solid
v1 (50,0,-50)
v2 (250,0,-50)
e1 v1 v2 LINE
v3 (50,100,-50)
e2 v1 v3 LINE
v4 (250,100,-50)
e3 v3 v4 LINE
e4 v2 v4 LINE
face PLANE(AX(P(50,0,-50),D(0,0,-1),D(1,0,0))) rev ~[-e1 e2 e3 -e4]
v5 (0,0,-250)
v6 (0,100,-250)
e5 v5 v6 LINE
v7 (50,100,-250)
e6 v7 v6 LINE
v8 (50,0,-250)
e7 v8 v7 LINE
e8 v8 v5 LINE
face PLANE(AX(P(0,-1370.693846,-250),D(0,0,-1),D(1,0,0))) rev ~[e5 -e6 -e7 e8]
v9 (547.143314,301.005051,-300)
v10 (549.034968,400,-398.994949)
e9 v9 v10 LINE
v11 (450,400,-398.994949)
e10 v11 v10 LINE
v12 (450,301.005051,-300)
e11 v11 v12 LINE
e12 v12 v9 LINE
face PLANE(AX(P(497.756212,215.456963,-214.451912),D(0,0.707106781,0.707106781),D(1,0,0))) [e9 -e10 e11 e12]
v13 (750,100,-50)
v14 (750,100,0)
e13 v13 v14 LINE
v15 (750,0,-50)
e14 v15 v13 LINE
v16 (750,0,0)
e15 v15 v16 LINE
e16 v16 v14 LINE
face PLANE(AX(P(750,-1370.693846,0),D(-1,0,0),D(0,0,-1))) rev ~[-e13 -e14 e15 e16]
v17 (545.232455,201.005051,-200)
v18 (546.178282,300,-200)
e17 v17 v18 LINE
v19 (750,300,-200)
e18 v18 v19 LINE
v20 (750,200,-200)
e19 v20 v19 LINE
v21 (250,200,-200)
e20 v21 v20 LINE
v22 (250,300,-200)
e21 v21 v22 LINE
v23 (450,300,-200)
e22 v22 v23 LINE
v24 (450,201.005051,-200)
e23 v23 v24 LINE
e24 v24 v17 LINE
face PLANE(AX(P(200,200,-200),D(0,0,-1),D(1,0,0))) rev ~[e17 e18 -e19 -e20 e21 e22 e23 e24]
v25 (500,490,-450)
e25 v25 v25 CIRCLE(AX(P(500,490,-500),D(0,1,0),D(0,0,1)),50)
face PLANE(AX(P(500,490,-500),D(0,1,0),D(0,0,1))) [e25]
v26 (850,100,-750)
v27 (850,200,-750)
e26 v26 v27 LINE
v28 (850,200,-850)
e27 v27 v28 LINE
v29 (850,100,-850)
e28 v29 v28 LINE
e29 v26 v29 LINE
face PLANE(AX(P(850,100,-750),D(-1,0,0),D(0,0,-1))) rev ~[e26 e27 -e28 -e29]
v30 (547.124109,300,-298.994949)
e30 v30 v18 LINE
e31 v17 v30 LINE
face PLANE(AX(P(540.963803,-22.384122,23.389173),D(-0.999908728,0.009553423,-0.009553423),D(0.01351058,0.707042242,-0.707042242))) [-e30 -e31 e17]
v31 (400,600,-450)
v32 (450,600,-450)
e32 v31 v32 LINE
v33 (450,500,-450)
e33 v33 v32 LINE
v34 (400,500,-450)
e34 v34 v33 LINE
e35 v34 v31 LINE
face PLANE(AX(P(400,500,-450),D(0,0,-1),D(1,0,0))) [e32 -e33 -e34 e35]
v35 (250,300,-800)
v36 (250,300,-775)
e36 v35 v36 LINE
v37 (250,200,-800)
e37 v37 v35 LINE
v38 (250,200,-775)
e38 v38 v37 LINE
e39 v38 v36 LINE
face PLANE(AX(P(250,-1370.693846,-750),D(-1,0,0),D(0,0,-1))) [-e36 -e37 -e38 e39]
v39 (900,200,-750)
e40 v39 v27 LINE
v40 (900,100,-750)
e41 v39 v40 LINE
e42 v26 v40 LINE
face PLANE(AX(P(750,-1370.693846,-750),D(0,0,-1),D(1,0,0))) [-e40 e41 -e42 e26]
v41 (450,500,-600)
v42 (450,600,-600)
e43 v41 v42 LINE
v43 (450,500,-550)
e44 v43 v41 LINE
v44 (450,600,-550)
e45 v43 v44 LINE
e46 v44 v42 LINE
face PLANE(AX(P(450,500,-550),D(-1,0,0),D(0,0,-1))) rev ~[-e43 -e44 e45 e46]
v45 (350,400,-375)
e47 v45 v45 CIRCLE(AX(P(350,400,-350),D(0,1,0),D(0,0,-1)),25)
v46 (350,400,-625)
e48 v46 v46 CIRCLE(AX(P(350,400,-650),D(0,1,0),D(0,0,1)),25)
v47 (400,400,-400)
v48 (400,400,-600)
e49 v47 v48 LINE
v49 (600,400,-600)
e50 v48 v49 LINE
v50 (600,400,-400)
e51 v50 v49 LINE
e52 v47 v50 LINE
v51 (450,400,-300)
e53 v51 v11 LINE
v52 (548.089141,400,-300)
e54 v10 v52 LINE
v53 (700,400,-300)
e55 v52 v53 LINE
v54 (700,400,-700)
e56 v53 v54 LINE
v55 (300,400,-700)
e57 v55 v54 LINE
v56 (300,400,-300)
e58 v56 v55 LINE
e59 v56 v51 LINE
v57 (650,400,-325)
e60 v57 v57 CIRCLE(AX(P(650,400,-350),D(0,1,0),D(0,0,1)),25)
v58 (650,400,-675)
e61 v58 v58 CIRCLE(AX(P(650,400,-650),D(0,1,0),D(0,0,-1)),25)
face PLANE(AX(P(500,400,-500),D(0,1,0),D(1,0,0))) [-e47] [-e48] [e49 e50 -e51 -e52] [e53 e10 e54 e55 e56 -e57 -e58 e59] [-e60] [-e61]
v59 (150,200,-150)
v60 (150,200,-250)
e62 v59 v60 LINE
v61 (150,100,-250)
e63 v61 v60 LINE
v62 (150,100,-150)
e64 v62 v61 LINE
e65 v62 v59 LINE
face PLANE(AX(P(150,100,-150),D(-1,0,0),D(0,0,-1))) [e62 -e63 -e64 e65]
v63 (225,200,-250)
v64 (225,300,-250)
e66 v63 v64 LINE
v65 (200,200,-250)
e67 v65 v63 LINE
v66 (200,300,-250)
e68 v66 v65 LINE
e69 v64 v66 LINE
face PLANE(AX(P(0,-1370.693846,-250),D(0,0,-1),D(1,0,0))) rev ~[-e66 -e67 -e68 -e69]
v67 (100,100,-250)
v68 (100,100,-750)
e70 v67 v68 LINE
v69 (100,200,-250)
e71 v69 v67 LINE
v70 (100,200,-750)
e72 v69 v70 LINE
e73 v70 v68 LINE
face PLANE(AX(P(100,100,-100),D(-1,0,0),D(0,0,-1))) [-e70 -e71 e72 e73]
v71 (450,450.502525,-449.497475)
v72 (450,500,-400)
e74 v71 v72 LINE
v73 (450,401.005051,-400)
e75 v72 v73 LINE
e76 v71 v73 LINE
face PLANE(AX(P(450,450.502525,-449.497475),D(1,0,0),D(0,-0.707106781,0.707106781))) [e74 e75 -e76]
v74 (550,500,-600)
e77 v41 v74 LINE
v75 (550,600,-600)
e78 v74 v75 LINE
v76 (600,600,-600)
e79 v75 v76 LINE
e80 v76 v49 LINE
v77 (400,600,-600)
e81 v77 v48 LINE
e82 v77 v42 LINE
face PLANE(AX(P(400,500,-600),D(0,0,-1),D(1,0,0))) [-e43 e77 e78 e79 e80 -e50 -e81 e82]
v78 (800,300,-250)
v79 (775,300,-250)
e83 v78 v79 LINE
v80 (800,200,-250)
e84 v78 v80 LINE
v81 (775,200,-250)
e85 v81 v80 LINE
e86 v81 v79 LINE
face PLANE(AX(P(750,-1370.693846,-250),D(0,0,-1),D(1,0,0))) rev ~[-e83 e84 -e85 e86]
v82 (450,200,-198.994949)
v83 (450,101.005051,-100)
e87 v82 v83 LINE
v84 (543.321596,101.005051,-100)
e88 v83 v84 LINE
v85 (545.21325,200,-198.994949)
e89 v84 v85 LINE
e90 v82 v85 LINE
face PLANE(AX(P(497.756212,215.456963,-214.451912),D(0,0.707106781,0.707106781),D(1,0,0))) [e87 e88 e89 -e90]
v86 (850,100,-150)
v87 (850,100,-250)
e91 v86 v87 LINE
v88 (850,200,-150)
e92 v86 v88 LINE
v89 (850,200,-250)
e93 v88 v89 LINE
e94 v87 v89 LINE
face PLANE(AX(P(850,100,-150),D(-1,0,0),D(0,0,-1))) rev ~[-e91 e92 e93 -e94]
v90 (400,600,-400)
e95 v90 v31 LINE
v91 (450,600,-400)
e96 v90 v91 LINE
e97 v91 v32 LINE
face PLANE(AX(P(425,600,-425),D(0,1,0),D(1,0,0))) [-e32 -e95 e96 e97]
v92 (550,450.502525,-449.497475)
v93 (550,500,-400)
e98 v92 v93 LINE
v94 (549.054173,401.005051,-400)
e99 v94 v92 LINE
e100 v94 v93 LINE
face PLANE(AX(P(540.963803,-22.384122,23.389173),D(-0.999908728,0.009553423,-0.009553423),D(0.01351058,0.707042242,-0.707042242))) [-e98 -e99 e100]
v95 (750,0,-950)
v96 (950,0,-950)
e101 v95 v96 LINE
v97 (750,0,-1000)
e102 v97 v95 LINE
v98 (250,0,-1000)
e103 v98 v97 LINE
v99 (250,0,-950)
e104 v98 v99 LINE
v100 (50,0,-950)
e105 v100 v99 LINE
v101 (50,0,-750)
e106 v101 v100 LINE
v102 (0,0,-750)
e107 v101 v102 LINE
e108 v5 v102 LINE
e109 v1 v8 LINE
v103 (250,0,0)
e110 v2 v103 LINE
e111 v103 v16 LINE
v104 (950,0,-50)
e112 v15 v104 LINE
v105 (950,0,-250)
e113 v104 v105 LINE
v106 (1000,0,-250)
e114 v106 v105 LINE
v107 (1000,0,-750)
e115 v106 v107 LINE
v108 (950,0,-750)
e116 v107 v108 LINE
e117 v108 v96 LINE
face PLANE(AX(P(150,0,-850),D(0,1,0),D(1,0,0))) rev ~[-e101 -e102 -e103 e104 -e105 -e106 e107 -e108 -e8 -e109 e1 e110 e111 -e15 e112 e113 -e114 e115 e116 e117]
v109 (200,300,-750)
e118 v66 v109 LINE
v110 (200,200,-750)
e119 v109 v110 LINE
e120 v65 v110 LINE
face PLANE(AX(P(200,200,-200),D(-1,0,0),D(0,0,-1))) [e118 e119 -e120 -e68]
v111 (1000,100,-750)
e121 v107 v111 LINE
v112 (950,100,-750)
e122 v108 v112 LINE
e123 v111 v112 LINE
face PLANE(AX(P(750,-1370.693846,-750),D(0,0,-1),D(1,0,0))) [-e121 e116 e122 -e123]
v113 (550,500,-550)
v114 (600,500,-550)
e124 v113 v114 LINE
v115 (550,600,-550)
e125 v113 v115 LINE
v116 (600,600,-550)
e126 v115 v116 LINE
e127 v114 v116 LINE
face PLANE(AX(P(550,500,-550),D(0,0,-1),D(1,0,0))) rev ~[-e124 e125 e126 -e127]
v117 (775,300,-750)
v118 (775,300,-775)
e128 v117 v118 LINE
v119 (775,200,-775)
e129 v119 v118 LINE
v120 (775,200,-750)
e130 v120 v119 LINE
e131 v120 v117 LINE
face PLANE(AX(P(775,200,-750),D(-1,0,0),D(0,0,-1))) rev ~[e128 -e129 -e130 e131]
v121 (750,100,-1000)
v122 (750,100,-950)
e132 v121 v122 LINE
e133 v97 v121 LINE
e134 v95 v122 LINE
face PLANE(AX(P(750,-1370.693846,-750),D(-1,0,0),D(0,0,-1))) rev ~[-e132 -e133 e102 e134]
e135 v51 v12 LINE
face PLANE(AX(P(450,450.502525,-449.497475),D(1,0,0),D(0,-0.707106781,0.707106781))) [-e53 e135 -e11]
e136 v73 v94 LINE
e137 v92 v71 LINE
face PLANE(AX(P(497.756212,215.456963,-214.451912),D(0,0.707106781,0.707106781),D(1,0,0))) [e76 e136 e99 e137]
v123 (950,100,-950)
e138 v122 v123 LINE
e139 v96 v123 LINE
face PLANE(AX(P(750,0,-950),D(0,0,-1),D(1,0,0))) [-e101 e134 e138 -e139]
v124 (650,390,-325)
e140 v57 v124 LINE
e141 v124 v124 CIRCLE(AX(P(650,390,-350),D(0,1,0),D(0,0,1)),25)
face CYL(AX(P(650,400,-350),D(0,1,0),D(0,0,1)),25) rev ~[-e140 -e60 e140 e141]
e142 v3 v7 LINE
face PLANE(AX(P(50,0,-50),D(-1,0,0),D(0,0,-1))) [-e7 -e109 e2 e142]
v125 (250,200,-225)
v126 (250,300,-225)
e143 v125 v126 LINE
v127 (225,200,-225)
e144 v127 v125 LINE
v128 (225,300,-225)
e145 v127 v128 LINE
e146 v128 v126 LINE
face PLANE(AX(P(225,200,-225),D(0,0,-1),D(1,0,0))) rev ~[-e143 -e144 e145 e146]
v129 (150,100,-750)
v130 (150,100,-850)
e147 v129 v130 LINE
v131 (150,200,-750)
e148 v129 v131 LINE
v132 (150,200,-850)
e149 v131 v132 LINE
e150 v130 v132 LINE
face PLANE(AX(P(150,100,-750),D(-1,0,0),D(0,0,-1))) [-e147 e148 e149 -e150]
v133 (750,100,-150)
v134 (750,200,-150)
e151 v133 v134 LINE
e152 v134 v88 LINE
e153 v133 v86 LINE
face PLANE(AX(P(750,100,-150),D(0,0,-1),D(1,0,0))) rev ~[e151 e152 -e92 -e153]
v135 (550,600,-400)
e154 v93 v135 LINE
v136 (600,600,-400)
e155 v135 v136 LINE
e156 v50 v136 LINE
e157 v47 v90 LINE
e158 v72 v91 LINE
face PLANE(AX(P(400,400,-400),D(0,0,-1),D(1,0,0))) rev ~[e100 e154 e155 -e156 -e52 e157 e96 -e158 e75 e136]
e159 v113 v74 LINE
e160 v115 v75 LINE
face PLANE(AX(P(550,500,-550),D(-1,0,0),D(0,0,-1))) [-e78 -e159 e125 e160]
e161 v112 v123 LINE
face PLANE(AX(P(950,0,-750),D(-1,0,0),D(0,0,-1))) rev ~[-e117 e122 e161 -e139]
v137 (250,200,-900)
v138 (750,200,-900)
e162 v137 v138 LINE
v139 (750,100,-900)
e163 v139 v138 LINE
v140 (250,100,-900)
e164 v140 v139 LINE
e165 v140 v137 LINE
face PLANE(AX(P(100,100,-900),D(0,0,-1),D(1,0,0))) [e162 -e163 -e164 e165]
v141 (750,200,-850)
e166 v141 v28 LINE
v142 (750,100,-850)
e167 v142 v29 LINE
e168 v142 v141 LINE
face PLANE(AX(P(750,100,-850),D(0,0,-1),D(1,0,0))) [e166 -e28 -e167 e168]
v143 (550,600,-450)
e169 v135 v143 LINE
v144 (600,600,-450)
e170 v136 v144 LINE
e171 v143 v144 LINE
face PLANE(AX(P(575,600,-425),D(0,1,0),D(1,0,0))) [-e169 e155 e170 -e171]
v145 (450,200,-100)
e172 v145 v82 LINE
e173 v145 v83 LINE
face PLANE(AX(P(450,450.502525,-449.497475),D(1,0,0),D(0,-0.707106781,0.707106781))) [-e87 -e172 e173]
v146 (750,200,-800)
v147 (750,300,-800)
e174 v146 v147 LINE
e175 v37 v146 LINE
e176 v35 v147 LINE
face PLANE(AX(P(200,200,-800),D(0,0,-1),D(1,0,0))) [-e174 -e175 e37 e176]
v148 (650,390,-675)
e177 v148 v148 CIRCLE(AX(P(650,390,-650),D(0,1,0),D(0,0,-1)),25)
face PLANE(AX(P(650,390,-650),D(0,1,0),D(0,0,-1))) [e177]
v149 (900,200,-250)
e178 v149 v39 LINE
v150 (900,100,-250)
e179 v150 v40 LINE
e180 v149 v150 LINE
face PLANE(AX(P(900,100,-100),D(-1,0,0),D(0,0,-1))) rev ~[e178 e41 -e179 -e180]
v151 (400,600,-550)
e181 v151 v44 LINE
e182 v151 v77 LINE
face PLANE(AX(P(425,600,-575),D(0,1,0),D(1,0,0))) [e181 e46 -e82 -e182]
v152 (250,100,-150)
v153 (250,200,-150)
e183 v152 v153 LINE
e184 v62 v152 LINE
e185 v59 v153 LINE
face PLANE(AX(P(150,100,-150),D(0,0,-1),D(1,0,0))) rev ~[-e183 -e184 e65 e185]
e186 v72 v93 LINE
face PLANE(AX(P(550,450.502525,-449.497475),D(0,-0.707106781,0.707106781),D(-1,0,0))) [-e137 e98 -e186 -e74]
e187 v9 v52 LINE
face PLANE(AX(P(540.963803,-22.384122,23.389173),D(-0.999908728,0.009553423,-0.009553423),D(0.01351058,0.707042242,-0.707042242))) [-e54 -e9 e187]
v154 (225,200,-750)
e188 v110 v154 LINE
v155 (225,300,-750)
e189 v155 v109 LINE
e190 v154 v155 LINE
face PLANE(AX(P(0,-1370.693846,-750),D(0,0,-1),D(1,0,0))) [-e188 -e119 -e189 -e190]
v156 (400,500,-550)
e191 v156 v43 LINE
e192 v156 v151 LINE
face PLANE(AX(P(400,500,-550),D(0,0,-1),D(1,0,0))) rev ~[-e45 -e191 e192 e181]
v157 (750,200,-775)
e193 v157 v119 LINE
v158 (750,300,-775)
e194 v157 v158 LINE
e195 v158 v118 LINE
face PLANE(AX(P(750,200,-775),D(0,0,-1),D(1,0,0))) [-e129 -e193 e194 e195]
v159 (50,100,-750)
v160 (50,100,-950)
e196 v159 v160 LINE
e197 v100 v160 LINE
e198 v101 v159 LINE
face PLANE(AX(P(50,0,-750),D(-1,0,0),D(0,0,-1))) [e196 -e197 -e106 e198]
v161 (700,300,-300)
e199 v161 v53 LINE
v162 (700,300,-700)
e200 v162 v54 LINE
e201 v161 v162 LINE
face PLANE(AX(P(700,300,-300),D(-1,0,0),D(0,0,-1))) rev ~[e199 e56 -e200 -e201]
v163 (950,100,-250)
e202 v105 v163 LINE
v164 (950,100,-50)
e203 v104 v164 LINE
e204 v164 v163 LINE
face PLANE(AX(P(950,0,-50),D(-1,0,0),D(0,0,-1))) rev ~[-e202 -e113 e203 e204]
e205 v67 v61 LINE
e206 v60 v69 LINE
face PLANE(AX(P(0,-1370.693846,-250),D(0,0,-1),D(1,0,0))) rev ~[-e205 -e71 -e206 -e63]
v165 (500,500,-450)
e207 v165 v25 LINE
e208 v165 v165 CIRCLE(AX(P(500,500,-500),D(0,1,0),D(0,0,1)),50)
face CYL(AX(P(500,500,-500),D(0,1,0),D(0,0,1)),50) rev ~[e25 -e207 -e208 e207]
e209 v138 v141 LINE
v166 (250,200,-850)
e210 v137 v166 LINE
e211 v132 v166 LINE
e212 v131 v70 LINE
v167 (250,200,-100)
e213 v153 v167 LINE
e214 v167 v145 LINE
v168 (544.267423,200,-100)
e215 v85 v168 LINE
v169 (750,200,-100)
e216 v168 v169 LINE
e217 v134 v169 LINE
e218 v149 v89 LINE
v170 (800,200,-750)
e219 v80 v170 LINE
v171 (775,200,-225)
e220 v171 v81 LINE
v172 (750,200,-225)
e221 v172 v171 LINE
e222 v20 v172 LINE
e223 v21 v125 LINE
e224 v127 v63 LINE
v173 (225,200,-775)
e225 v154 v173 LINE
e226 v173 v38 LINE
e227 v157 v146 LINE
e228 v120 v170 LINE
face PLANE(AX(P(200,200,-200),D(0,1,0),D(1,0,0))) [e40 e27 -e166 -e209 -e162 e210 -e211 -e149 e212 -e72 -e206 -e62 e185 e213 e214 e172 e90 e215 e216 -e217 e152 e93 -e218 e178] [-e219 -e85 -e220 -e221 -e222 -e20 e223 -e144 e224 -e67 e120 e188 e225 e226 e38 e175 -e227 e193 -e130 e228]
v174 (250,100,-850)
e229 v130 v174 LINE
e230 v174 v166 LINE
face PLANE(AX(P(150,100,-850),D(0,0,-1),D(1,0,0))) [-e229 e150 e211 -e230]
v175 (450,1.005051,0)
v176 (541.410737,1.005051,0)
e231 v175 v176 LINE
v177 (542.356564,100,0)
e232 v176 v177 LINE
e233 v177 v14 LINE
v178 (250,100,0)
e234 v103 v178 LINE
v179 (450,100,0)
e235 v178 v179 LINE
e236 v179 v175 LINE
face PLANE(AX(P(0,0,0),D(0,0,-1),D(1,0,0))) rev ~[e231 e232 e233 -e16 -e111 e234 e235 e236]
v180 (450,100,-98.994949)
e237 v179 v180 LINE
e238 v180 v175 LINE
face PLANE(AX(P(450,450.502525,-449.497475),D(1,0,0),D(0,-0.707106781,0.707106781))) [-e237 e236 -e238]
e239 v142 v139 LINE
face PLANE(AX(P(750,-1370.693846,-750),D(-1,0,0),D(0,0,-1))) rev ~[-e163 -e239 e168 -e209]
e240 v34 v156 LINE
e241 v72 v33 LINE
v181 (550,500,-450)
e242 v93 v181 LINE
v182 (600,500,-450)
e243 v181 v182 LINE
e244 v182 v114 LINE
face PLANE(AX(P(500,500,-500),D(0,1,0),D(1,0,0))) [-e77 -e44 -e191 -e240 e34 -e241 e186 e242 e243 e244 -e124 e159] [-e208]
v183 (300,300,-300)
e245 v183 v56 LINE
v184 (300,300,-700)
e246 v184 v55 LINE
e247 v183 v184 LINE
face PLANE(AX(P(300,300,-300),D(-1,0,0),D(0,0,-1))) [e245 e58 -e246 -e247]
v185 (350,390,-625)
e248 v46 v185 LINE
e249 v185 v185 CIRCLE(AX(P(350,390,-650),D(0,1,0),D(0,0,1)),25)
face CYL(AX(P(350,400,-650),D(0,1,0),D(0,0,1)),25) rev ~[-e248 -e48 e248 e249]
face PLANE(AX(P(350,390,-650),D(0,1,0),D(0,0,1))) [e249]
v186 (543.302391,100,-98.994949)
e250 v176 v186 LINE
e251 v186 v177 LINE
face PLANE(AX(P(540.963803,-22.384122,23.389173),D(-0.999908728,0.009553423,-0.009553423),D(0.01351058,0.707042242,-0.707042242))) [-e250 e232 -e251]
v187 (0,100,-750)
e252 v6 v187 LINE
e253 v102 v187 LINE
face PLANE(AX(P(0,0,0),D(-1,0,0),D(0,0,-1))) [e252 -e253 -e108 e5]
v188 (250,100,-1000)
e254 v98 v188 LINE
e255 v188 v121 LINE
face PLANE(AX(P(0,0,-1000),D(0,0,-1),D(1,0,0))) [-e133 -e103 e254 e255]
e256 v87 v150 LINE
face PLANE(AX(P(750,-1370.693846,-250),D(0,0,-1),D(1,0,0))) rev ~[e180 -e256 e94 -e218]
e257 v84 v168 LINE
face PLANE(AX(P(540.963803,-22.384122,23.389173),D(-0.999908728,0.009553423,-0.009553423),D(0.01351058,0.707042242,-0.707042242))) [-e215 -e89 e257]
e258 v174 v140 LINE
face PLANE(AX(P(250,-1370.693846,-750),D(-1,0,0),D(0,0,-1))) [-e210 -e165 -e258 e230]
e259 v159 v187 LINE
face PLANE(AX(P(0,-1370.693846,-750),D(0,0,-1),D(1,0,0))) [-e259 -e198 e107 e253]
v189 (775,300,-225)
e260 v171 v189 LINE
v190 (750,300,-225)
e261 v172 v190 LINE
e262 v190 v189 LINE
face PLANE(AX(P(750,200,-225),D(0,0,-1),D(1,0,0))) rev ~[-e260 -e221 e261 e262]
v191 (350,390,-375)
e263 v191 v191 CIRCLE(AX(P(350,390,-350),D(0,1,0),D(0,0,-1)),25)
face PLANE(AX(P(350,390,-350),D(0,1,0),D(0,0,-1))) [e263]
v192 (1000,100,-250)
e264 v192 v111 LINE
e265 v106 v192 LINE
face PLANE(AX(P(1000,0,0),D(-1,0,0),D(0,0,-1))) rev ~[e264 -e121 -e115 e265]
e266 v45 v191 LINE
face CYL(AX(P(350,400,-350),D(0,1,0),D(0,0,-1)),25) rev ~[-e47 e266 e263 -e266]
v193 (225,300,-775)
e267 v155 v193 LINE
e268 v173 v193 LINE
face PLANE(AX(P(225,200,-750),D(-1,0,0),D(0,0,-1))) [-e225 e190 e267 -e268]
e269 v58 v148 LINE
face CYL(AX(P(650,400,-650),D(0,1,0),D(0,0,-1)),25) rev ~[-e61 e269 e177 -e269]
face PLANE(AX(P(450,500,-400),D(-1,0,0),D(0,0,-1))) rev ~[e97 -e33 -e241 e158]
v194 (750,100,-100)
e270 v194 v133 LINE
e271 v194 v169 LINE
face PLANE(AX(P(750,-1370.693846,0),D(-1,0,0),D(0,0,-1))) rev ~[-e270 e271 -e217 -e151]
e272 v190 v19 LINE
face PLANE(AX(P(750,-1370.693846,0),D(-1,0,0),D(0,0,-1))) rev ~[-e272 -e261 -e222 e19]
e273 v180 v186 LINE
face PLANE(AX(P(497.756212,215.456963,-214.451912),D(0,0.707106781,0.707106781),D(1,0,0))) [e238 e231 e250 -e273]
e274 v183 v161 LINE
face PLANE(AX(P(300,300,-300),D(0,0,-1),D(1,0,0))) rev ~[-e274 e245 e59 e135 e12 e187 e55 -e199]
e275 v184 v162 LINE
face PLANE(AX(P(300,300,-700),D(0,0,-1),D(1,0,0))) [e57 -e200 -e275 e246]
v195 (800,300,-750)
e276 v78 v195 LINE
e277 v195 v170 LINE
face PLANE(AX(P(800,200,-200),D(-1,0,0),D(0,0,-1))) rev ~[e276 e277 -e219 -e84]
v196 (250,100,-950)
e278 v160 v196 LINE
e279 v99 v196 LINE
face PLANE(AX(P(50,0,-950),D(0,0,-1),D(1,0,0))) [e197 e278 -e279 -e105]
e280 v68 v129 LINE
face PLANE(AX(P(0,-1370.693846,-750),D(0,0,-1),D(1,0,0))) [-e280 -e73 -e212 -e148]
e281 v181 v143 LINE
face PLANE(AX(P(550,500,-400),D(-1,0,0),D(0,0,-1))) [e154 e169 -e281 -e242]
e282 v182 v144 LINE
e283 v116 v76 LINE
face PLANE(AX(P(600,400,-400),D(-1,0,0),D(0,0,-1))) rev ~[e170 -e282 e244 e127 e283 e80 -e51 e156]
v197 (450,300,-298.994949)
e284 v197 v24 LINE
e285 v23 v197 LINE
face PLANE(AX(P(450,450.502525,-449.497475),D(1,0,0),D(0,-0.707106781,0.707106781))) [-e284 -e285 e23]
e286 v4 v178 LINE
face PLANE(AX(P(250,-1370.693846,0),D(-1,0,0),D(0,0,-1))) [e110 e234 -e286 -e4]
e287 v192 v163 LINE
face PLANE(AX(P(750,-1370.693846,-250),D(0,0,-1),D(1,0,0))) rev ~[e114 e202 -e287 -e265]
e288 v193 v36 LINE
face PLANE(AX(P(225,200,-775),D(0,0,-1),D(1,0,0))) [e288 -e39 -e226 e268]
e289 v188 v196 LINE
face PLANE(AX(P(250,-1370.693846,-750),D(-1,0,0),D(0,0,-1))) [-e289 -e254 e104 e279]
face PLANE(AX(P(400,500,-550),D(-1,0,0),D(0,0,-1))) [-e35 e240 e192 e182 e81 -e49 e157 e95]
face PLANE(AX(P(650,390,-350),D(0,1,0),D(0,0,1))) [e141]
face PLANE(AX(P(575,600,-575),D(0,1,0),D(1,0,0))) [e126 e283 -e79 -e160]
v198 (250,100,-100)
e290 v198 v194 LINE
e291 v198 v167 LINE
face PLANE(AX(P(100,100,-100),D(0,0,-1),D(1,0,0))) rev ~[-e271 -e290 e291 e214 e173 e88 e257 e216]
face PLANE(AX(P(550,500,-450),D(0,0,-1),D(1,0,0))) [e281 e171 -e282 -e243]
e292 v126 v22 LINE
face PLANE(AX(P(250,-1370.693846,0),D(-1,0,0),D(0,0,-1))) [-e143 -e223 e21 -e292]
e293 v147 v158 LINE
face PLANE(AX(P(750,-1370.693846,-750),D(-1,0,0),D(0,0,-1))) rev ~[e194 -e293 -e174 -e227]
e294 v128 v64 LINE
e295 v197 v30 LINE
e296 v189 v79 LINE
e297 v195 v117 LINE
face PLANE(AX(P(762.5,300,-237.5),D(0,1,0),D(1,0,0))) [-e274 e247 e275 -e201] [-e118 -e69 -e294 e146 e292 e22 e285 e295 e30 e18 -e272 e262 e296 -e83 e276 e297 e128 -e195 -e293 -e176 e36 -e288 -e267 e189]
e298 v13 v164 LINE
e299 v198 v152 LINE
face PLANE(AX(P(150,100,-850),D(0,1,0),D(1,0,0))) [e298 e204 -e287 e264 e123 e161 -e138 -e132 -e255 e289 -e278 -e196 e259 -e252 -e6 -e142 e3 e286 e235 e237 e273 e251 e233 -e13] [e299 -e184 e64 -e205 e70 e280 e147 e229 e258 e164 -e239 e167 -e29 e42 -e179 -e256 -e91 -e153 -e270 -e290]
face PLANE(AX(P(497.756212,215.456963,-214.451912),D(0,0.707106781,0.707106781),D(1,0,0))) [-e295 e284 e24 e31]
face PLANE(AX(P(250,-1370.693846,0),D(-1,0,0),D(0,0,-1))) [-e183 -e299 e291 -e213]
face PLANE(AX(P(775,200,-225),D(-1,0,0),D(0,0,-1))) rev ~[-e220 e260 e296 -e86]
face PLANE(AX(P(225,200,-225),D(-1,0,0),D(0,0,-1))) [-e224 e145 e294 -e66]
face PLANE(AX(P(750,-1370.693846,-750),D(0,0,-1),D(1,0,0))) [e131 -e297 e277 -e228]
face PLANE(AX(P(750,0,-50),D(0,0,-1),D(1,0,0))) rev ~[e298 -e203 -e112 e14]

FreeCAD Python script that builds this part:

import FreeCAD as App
import Part
import Sketcher
from FreeCAD import Vector
Q = App.Units.Quantity


def add_polygon(sketch, points):
    """Adds a closed chain of lines whose ends are joined by coincident constraints."""
    first, n = sketch.GeometryCount, len(points)
    for a, b in zip(points, points[1:] + points[:1]):
        sketch.addGeometry(Part.LineSegment(App.Vector(*a, 0), App.Vector(*b, 0)), False)
    for i in range(n):
        sketch.addConstraint(Sketcher.Constraint("Coincident", first + i, 2, first + (i + 1) % n, 1))

doc = App.newDocument("Part")
body = doc.addObject("PartDesign::Body", "Body")

sketch1 = doc.addObject("Sketcher::SketchObject", "Sketch")
body.addObject(sketch1)
sketch1.AttachmentSupport = (doc.XZ_Plane, [""])
sketch1.MapMode = "FlatFace"
add_polygon(sketch1, [(0, -1000), (0, 0), (1000, 0), (1000, -1000)])
sketch1.addConstraint(Sketcher.Constraint("Vertical", 0))
sketch1.addConstraint(Sketcher.Constraint("Horizontal", 1))
sketch1.addConstraint(Sketcher.Constraint("Vertical", 2))
sketch1.addConstraint(Sketcher.Constraint("Horizontal", 3))
sketch1.addConstraint(Sketcher.Constraint("Coincident", 0, 2, -1, 1))
sketch1.addConstraint(Sketcher.Constraint("Equal", 3, 0))
sketch1.addConstraint(Sketcher.Constraint("DistanceX", 1, 1, 1, 2, Q("1000 mm")))
pad1 = doc.addObject("PartDesign::Pad", "Pad")
body.addObject(pad1)
pad1.Profile = sketch1
pad1.Length = 100
pad1.Reversed = True

sketch2 = doc.addObject("Sketcher::SketchObject", "Sketch001")
body.addObject(sketch2)
sketch2.AttachmentSupport = (doc.XZ_Plane, [""])
sketch2.MapMode = "FlatFace"
sketch2.AttachmentOffset = App.Placement(Vector(0, 0, -100), App.Rotation())
add_polygon(sketch2, [(100, -900), (100, -100), (900, -100), (900, -900)])
sketch2.addConstraint(Sketcher.Constraint("Vertical", 0))
sketch2.addConstraint(Sketcher.Constraint("Horizontal", 1))
sketch2.addConstraint(Sketcher.Constraint("Vertical", 2))
sketch2.addConstraint(Sketcher.Constraint("Horizontal", 3))
sketch2.addConstraint(Sketcher.Constraint("Equal", 3, 0))
sketch2.addConstraint(Sketcher.Constraint("DistanceX", 1, 1, 1, 2, Q("800 mm")))
sketch2.addConstraint(Sketcher.Constraint("DistanceX", -1, 1, 0, 2, Q("100 mm")))
sketch2.addConstraint(Sketcher.Constraint("DistanceY", 0, 2, -1, 1, Q("100 mm")))
pad2 = doc.addObject("PartDesign::Pad", "Pad001")
body.addObject(pad2)
pad2.Profile = sketch2
pad2.Length = 100
pad2.Reversed = True

sketch3 = doc.addObject("Sketcher::SketchObject", "Sketch002")
body.addObject(sketch3)
sketch3.AttachmentSupport = (doc.XZ_Plane, [""])
sketch3.MapMode = "FlatFace"
sketch3.AttachmentOffset = App.Placement(Vector(0, 0, -200), App.Rotation())
add_polygon(sketch3, [(200, -800), (200, -200), (800, -200), (800, -800)])
sketch3.addConstraint(Sketcher.Constraint("Vertical", 0))
sketch3.addConstraint(Sketcher.Constraint("Horizontal", 1))
sketch3.addConstraint(Sketcher.Constraint("Vertical", 2))
sketch3.addConstraint(Sketcher.Constraint("Horizontal", 3))
sketch3.addConstraint(Sketcher.Constraint("Equal", 3, 0))
sketch3.addConstraint(Sketcher.Constraint("DistanceX", 1, 1, 1, 2, Q("600 mm")))
sketch3.addConstraint(Sketcher.Constraint("DistanceX", -1, 1, 0, 2, Q("200 mm")))
sketch3.addConstraint(Sketcher.Constraint("DistanceY", 0, 2, -1, 1, Q("200 mm")))
pad3 = doc.addObject("PartDesign::Pad", "Pad002")
body.addObject(pad3)
pad3.Profile = sketch3
pad3.Length = 100
pad3.Reversed = True

sketch4 = doc.addObject("Sketcher::SketchObject", "Sketch003")
body.addObject(sketch4)
sketch4.AttachmentSupport = (doc.XZ_Plane, [""])
sketch4.MapMode = "FlatFace"
sketch4.AttachmentOffset = App.Placement(Vector(0, 0, -300), App.Rotation())
add_polygon(sketch4, [(300, -700), (300, -300), (700, -300), (700, -700)])
sketch4.addConstraint(Sketcher.Constraint("Vertical", 0))
sketch4.addConstraint(Sketcher.Constraint("Horizontal", 1))
sketch4.addConstraint(Sketcher.Constraint("Vertical", 2))
sketch4.addConstraint(Sketcher.Constraint("Horizontal", 3))
sketch4.addConstraint(Sketcher.Constraint("Equal", 3, 0))
sketch4.addConstraint(Sketcher.Constraint("DistanceX", 1, 1, 1, 2, Q("400 mm")))
sketch4.addConstraint(Sketcher.Constraint("DistanceX", -1, 1, 0, 2, Q("300 mm")))
sketch4.addConstraint(Sketcher.Constraint("DistanceY", 0, 2, -1, 1, Q("300 mm")))
pad4 = doc.addObject("PartDesign::Pad", "Pad003")
body.addObject(pad4)
pad4.Profile = sketch4
pad4.Length = 100
pad4.Reversed = True

sketch5 = doc.addObject("Sketcher::SketchObject", "Sketch004")
body.addObject(sketch5)
sketch5.AttachmentSupport = (doc.XZ_Plane, [""])
sketch5.MapMode = "FlatFace"
sketch5.AttachmentOffset = App.Placement(Vector(0, 0, -400), App.Rotation())
add_polygon(sketch5, [(400, -600), (400, -400), (600, -400), (600, -600)])
sketch5.addConstraint(Sketcher.Constraint("Vertical", 0))
sketch5.addConstraint(Sketcher.Constraint("Horizontal", 1))
sketch5.addConstraint(Sketcher.Constraint("Vertical", 2))
sketch5.addConstraint(Sketcher.Constraint("Horizontal", 3))
sketch5.addConstraint(Sketcher.Constraint("Equal", 3, 0))
sketch5.addConstraint(Sketcher.Constraint("DistanceX", 1, 1, 1, 2, Q("200 mm")))
sketch5.addConstraint(Sketcher.Constraint("DistanceX", -1, 1, 0, 2, Q("400 mm")))
sketch5.addConstraint(Sketcher.Constraint("DistanceY", 0, 2, -1, 1, Q("400 mm")))
pad5 = doc.addObject("PartDesign::Pad", "Pad004")
body.addObject(pad5)
pad5.Profile = sketch5
pad5.Length = 100
pad5.Reversed = True

sketch6 = doc.addObject("Sketcher::SketchObject", "Sketch005")
body.addObject(sketch6)
sketch6.AttachmentSupport = (doc.XZ_Plane, [""])
sketch6.MapMode = "FlatFace"
sketch6.AttachmentOffset = App.Placement(Vector(0, 0, -100), App.Rotation())
add_polygon(sketch6, [(0, -250), (0, 0), (250, 0), (250, -250)])
add_polygon(sketch6, [(750, -250), (750, 0), (1000, 0), (1000, -250)])
add_polygon(sketch6, [(750, -1000), (750, -750), (1000, -750), (1000, -1000)])
add_polygon(sketch6, [(0, -1000), (0, -750), (250, -750), (250, -1000)])
sketch6.addConstraint(Sketcher.Constraint("Vertical", 0))
sketch6.addConstraint(Sketcher.Constraint("Horizontal", 1))
sketch6.addConstraint(Sketcher.Constraint("Vertical", 2))
sketch6.addConstraint(Sketcher.Constraint("Horizontal", 3))
sketch6.addConstraint(Sketcher.Constraint("Vertical", 4))
sketch6.addConstraint(Sketcher.Constraint("Horizontal", 5))
sketch6.addConstraint(Sketcher.Constraint("Vertical", 6))
sketch6.addConstraint(Sketcher.Constraint("Horizontal", 7))
sketch6.addConstraint(Sketcher.Constraint("Vertical", 8))
sketch6.addConstraint(Sketcher.Constraint("Horizontal", 9))
sketch6.addConstraint(Sketcher.Constraint("Vertical", 10))
sketch6.addConstraint(Sketcher.Constraint("Horizontal", 11))
sketch6.addConstraint(Sketcher.Constraint("Vertical", 12))
sketch6.addConstraint(Sketcher.Constraint("Horizontal", 13))
sketch6.addConstraint(Sketcher.Constraint("Vertical", 14))
sketch6.addConstraint(Sketcher.Constraint("Horizontal", 15))
sketch6.addConstraint(Sketcher.Constraint("Coincident", 0, 2, -1, 1))
sketch6.addConstraint(Sketcher.Constraint("PointOnObject", 4, 2, -1))
sketch6.addConstraint(Sketcher.Constraint("PointOnObject", 12, 2, -2))
sketch6.addConstraint(Sketcher.Constraint("Horizontal", 3, 2, 6, 2))
sketch6.addConstraint(Sketcher.Constraint("Horizontal", 9, 2, 12, 2))
sketch6.addConstraint(Sketcher.Constraint("Horizontal", 11, 2, 14, 2))
sketch6.addConstraint(Sketcher.Constraint("Vertical", 7, 2, 8, 2))
sketch6.addConstraint(Sketcher.Constraint("Vertical", 6, 2, 9, 2))
sketch6.addConstraint(Sketcher.Constraint("Vertical", 2, 2, 13, 2))
sketch6.addConstraint(Sketcher.Constraint("Equal", 3, 5))
sketch6.addConstraint(Sketcher.Constraint("Equal", 15, 0))
sketch6.addConstraint(Sketcher.Constraint("Equal", 6, 8))
sketch6.addConstraint(Sketcher.Constraint("DistanceX", 1, 1, 1, 2, Q("250 mm")))
sketch6.addConstraint(Sketcher.Constraint("DistanceX", -1, 1, 4, 2, Q("750 mm")))
sketch6.addConstraint(Sketcher.Constraint("DistanceY", 8, 2, -1, 1, Q("750 mm")))
pocket1 = doc.addObject("PartDesign::Pocket", "Pocket")
body.addObject(pocket1)
pocket1.Profile = sketch6
pocket1.Type = "ThroughAll"
pocket1.Midplane = True

sketch7 = doc.addObject("Sketcher::SketchObject", "Sketch006")
body.addObject(sketch7)
sketch7.Placement = App.Placement(Vector(0, 50, 50), App.Rotation(Vector(1, 0, 0), Vector(0, 0.707106781, -0.707106781), Vector(0, 0.707106781, 0.707106781), "ZXY"))
add_polygon(sketch7, [(450, 636.396103), (450, -32.366607), (540.963803, -32.366607), (550, 636.396103)])
sketch7.addConstraint(Sketcher.Constraint("Vertical", 0))
sketch7.addConstraint(Sketcher.Constraint("Horizontal", 1))
sketch7.addConstraint(Sketcher.Constraint("Horizontal", 3))
sketch7.addConstraint(Sketcher.Constraint("DistanceX", 3, 2, 3, 1, Q("100 mm")))
sketch7.addConstraint(Sketcher.Constraint("DistanceX", -1, 1, 0, 2, Q("450 mm")))
sketch7.addConstraint(Sketcher.Constraint("DistanceY", 0, 2, 0, 1, Q("668.76271 mm")))
sketch7.addConstraint(Sketcher.Constraint("DistanceX", 1, 1, 1, 2, Q("90.963803 mm")))
sketch7.addConstraint(Sketcher.Constraint("DistanceY", 0, 2, -1, 1, Q("32.366607 mm")))
pocket2 = doc.addObject("PartDesign::Pocket", "Pocket001")
body.addObject(pocket2)
pocket2.Profile = sketch7
pocket2.Type = "TwoLengths"
pocket2.Length = 1519.222645
pocket2.Length2 = 70
pocket2.Reversed = True

sketch8 = doc.addObject("Sketcher::SketchObject", "Sketch007")
body.addObject(sketch8)
sketch8.AttachmentSupport = (doc.XZ_Plane, [""])
sketch8.MapMode = "FlatFace"
add_polygon(sketch8, [(50, -950), (50, -750), (250, -750), (250, -950)])
add_polygon(sketch8, [(750, -950), (750, -750), (950, -750), (950, -950)])
add_polygon(sketch8, [(750, -250), (750, -50), (950, -50), (950, -250)])
add_polygon(sketch8, [(50, -250), (50, -50), (250, -50), (250, -250)])
sketch8.addConstraint(Sketcher.Constraint("Vertical", 0))
sketch8.addConstraint(Sketcher.Constraint("Horizontal", 1))
sketch8.addConstraint(Sketcher.Constraint("Vertical", 2))
sketch8.addConstraint(Sketcher.Constraint("Horizontal", 3))
sketch8.addConstraint(Sketcher.Constraint("Vertical", 4))
sketch8.addConstraint(Sketcher.Constraint("Horizontal", 5))
sketch8.addConstraint(Sketcher.Constraint("Vertical", 6))
sketch8.addConstraint(Sketcher.Constraint("Horizontal", 7))
sketch8.addConstraint(Sketcher.Constraint("Vertical", 8))
sketch8.addConstraint(Sketcher.Constraint("Horizontal", 9))
sketch8.addConstraint(Sketcher.Constraint("Vertical", 10))
sketch8.addConstraint(Sketcher.Constraint("Horizontal", 11))
sketch8.addConstraint(Sketcher.Constraint("Vertical", 12))
sketch8.addConstraint(Sketcher.Constraint("Horizontal", 13))
sketch8.addConstraint(Sketcher.Constraint("Vertical", 14))
sketch8.addConstraint(Sketcher.Constraint("Horizontal", 15))
sketch8.addConstraint(Sketcher.Constraint("Horizontal", 1, 2, 4, 2))
sketch8.addConstraint(Sketcher.Constraint("Horizontal", 3, 2, 6, 2))
sketch8.addConstraint(Sketcher.Constraint("Horizontal", 9, 2, 12, 2))
sketch8.addConstraint(Sketcher.Constraint("Horizontal", 11, 2, 14, 2))
sketch8.addConstraint(Sketcher.Constraint("Vertical", 7, 2, 8, 2))
sketch8.addConstraint(Sketcher.Constraint("Vertical", 6, 2, 9, 2))
sketch8.addConstraint(Sketcher.Constraint("Vertical", 3, 2, 12, 2))
sketch8.addConstraint(Sketcher.Constraint("Vertical", 2, 2, 13, 2))
sketch8.addConstraint(Sketcher.Constraint("Equal", 3, 5))
sketch8.addConstraint(Sketcher.Constraint("Equal", 15, 0))
sketch8.addConstraint(Sketcher.Constraint("Equal", 6, 8))
sketch8.addConstraint(Sketcher.Constraint("DistanceX", 1, 1, 1, 2, Q("200 mm")))
sketch8.addConstraint(Sketcher.Constraint("DistanceX", -1, 1, 0, 2, Q("50 mm")))
sketch8.addConstraint(Sketcher.Constraint("DistanceY", 0, 2, -1, 1, Q("750 mm")))
sketch8.addConstraint(Sketcher.Constraint("DistanceX", -1, 1, 4, 2, Q("750 mm")))
sketch8.addConstraint(Sketcher.Constraint("DistanceY", 8, 2, -1, 1, Q("50 mm")))
pad6 = doc.addObject("PartDesign::Pad", "Pad005")
body.addObject(pad6)
pad6.Profile = sketch8
pad6.Length = 100
pad6.Reversed = True

sketch9 = doc.addObject("Sketcher::SketchObject", "Sketch008")
body.addObject(sketch9)
sketch9.AttachmentSupport = (doc.XZ_Plane, [""])
sketch9.MapMode = "FlatFace"
sketch9.AttachmentOffset = App.Placement(Vector(0, 0, -100), App.Rotation())
add_polygon(sketch9, [(150, -250), (150, -150), (250, -150), (250, -250)])
add_polygon(sketch9, [(750, -250), (750, -150), (850, -150), (850, -250)])
add_polygon(sketch9, [(750, -850), (750, -750), (850, -750), (850, -850)])
add_polygon(sketch9, [(150, -850), (150, -750), (250, -750), (250, -850)])
sketch9.addConstraint(Sketcher.Constraint("Vertical", 0))
sketch9.addConstraint(Sketcher.Constraint("Horizontal", 1))
sketch9.addConstraint(Sketcher.Constraint("Vertical", 2))
sketch9.addConstraint(Sketcher.Constraint("Horizontal", 3))
sketch9.addConstraint(Sketcher.Constraint("Vertical", 4))
sketch9.addConstraint(Sketcher.Constraint("Horizontal", 5))
sketch9.addConstraint(Sketcher.Constraint("Vertical", 6))
sketch9.addConstraint(Sketcher.Constraint("Horizontal", 7))
sketch9.addConstraint(Sketcher.Constraint("Vertical", 8))
sketch9.addConstraint(Sketcher.Constraint("Horizontal", 9))
sketch9.addConstraint(Sketcher.Constraint("Vertical", 10))
sketch9.addConstraint(Sketcher.Constraint("Horizontal", 11))
sketch9.addConstraint(Sketcher.Constraint("Vertical", 12))
sketch9.addConstraint(Sketcher.Constraint("Horizontal", 13))
sketch9.addConstraint(Sketcher.Constraint("Vertical", 14))
sketch9.addConstraint(Sketcher.Constraint("Horizontal", 15))
sketch9.addConstraint(Sketcher.Constraint("Horizontal", 1, 2, 4, 2))
sketch9.addConstraint(Sketcher.Constraint("Horizontal", 3, 2, 6, 2))
sketch9.addConstraint(Sketcher.Constraint("Horizontal", 9, 2, 12, 2))
sketch9.addConstraint(Sketcher.Constraint("Horizontal", 11, 2, 14, 2))
sketch9.addConstraint(Sketcher.Constraint("Vertical", 7, 2, 8, 2))
sketch9.addConstraint(Sketcher.Constraint("Vertical", 6, 2, 9, 2))
sketch9.addConstraint(Sketcher.Constraint("Vertical", 3, 2, 12, 2))
sketch9.addConstraint(Sketcher.Constraint("Vertical", 2, 2, 13, 2))
sketch9.addConstraint(Sketcher.Constraint("Equal", 3, 5))
sketch9.addConstraint(Sketcher.Constraint("Equal", 15, 0))
sketch9.addConstraint(Sketcher.Constraint("Equal", 6, 8))
sketch9.addConstraint(Sketcher.Constraint("DistanceX", 1, 1, 1, 2, Q("100 mm")))
sketch9.addConstraint(Sketcher.Constraint("DistanceX", -1, 1, 0, 2, Q("150 mm")))
sketch9.addConstraint(Sketcher.Constraint("DistanceY", 0, 2, -1, 1, Q("150 mm")))
sketch9.addConstraint(Sketcher.Constraint("DistanceX", -1, 1, 4, 2, Q("750 mm")))
sketch9.addConstraint(Sketcher.Constraint("DistanceY", 8, 2, -1, 1, Q("750 mm")))
pad7 = doc.addObject("PartDesign::Pad", "Pad006")
body.addObject(pad7)
pad7.Profile = sketch9
pad7.Length = 100
pad7.Reversed = True

sketch10 = doc.addObject("Sketcher::SketchObject", "Sketch009")
body.addObject(sketch10)
sketch10.AttachmentSupport = (doc.XZ_Plane, [""])
sketch10.MapMode = "FlatFace"
sketch10.AttachmentOffset = App.Placement(Vector(0, 0, -200), App.Rotation())
add_polygon(sketch10, [(750, -250), (750, -225), (775, -225), (775, -250)])
add_polygon(sketch10, [(750, -775), (750, -750), (775, -750), (775, -775)])
add_polygon(sketch10, [(225, -775), (225, -750), (250, -750), (250, -775)])
add_polygon(sketch10, [(225, -250), (225, -225), (250, -225), (250, -250)])
sketch10.addConstraint(Sketcher.Constraint("Vertical", 0))
sketch10.addConstraint(Sketcher.Constraint("Horizontal", 1))
sketch10.addConstraint(Sketcher.Constraint("Vertical", 2))
sketch10.addConstraint(Sketcher.Constraint("Horizontal", 3))
sketch10.addConstraint(Sketcher.Constraint("Vertical", 4))
sketch10.addConstraint(Sketcher.Constraint("Horizontal", 5))
sketch10.addConstraint(Sketcher.Constraint("Vertical", 6))
sketch10.addConstraint(Sketcher.Constraint("Horizontal", 7))
sketch10.addConstraint(Sketcher.Constraint("Vertical", 8))
sketch10.addConstraint(Sketcher.Constraint("Horizontal", 9))
sketch10.addConstraint(Sketcher.Constraint("Vertical", 10))
sketch10.addConstraint(Sketcher.Constraint("Horizontal", 11))
sketch10.addConstraint(Sketcher.Constraint("Vertical", 12))
sketch10.addConstraint(Sketcher.Constraint("Horizontal", 13))
sketch10.addConstraint(Sketcher.Constraint("Vertical", 14))
sketch10.addConstraint(Sketcher.Constraint("Horizontal", 15))
sketch10.addConstraint(Sketcher.Constraint("Horizontal", 5, 2, 8, 2))
sketch10.addConstraint(Sketcher.Constraint("Horizontal", 7, 2, 10, 2))
sketch10.addConstraint(Sketcher.Constraint("Horizontal", 1, 2, 12, 2))
sketch10.addConstraint(Sketcher.Constraint("Horizontal", 3, 2, 14, 2))
sketch10.addConstraint(Sketcher.Constraint("Vertical", 3, 2, 4, 2))
sketch10.addConstraint(Sketcher.Constraint("Vertical", 2, 2, 5, 2))
sketch10.addConstraint(Sketcher.Constraint("Vertical", 11, 2, 12, 2))
sketch10.addConstraint(Sketcher.Constraint("Vertical", 10, 2, 13, 2))
sketch10.addConstraint(Sketcher.Constraint("Equal", 7, 9))
sketch10.addConstraint(Sketcher.Constraint("Equal", 15, 0))
sketch10.addConstraint(Sketcher.Constraint("Equal", 2, 4))
sketch10.addConstraint(Sketcher.Constraint("DistanceX", 1, 1, 1, 2, Q("25 mm")))
sketch10.addConstraint(Sketcher.Constraint("DistanceX", -1, 1, 0, 2, Q("750 mm")))
sketch10.addConstraint(Sketcher.Constraint("DistanceY", 0, 2, -1, 1, Q("225 mm")))
sketch10.addConstraint(Sketcher.Constraint("DistanceY", 4, 2, -1, 1, Q("750 mm")))
sketch10.addConstraint(Sketcher.Constraint("DistanceX", -1, 1, 8, 2, Q("225 mm")))
pad8 = doc.addObject("PartDesign::Pad", "Pad007")
body.addObject(pad8)
pad8.Profile = sketch10
pad8.Length = 100
pad8.Reversed = True

sketch11 = doc.addObject("Sketcher::SketchObject", "Sketch010")
body.addObject(sketch11)
sketch11.AttachmentSupport = (doc.XZ_Plane, [""])
sketch11.MapMode = "FlatFace"
sketch11.AttachmentOffset = App.Placement(Vector(0, 0, -500), App.Rotation())
add_polygon(sketch11, [(400, -600), (400, -550), (450, -550), (450, -600)])
add_polygon(sketch11, [(400, -450), (400, -400), (450, -400), (450, -450)])
add_polygon(sketch11, [(550, -450), (550, -400), (600, -400), (600, -450)])
add_polygon(sketch11, [(550, -600), (550, -550), (600, -550), (600, -600)])
sketch11.addConstraint(Sketcher.Constraint("Vertical", 0))
sketch11.addConstraint(Sketcher.Constraint("Horizontal", 1))
sketch11.addConstraint(Sketcher.Constraint("Vertical", 2))
sketch11.addConstraint(Sketcher.Constraint("Horizontal", 3))
sketch11.addConstraint(Sketcher.Constraint("Vertical", 4))
sketch11.addConstraint(Sketcher.Constraint("Horizontal", 5))
sketch11.addConstraint(Sketcher.Constraint("Vertical", 6))
sketch11.addConstraint(Sketcher.Constraint("Horizontal", 7))
sketch11.addConstraint(Sketcher.Constraint("Vertical", 8))
sketch11.addConstraint(Sketcher.Constraint("Horizontal", 9))
sketch11.addConstraint(Sketcher.Constraint("Vertical", 10))
sketch11.addConstraint(Sketcher.Constraint("Horizontal", 11))
sketch11.addConstraint(Sketcher.Constraint("Vertical", 12))
sketch11.addConstraint(Sketcher.Constraint("Horizontal", 13))
sketch11.addConstraint(Sketcher.Constraint("Vertical", 14))
sketch11.addConstraint(Sketcher.Constraint("Horizontal", 15))
sketch11.addConstraint(Sketcher.Constraint("Horizontal", 5, 2, 8, 2))
sketch11.addConstraint(Sketcher.Constraint("Horizontal", 7, 2, 10, 2))
sketch11.addConstraint(Sketcher.Constraint("Horizontal", 1, 2, 12, 2))
sketch11.addConstraint(Sketcher.Constraint("Horizontal", 3, 2, 14, 2))
sketch11.addConstraint(Sketcher.Constraint("Vertical", 3, 2, 4, 2))
sketch11.addConstraint(Sketcher.Constraint("Vertical", 2, 2, 5, 2))
sketch11.addConstraint(Sketcher.Constraint("Vertical", 11, 2, 12, 2))
sketch11.addConstraint(Sketcher.Constraint("Vertical", 10, 2, 13, 2))
sketch11.addConstraint(Sketcher.Constraint("Equal", 7, 9))
sketch11.addConstraint(Sketcher.Constraint("Equal", 15, 0))
sketch11.addConstraint(Sketcher.Constraint("Equal", 2, 4))
sketch11.addConstraint(Sketcher.Constraint("DistanceX", 1, 1, 1, 2, Q("50 mm")))
sketch11.addConstraint(Sketcher.Constraint("DistanceX", -1, 1, 0, 2, Q("400 mm")))
sketch11.addConstraint(Sketcher.Constraint("DistanceY", 0, 2, -1, 1, Q("550 mm")))
sketch11.addConstraint(Sketcher.Constraint("DistanceY", 4, 2, -1, 1, Q("400 mm")))
sketch11.addConstraint(Sketcher.Constraint("DistanceX", -1, 1, 8, 2, Q("550 mm")))
pad9 = doc.addObject("PartDesign::Pad", "Pad008")
body.addObject(pad9)
pad9.Profile = sketch11
pad9.Length = 100
pad9.Reversed = True

sketch12 = doc.addObject("Sketcher::SketchObject", "Sketch011")
body.addObject(sketch12)
sketch12.AttachmentSupport = (doc.XZ_Plane, [""])
sketch12.MapMode = "FlatFace"
sketch12.AttachmentOffset = App.Placement(Vector(0, 0, -500), App.Rotation())
sketch12.addGeometry(Part.Circle(Vector(500, -500, 0), Vector(0, 0, 1), 50), False)
sketch12.addConstraint(Sketcher.Constraint("Diameter", 0, Q("100 mm")))
sketch12.addConstraint(Sketcher.Constraint("DistanceX", -1, 1, 0, 3, Q("500 mm")))
sketch12.addConstraint(Sketcher.Constraint("DistanceY", 0, 3, -1, 1, Q("500 mm")))
pocket3 = doc.addObject("PartDesign::Pocket", "Pocket002")
body.addObject(pocket3)
pocket3.Profile = sketch12
pocket3.Length = 10
pocket3.Reversed = True

sketch13 = doc.addObject("Sketcher::SketchObject", "Sketch012")
body.addObject(sketch13)
sketch13.AttachmentSupport = (doc.XZ_Plane, [""])
sketch13.MapMode = "FlatFace"
sketch13.AttachmentOffset = App.Placement(Vector(0, 0, -400), App.Rotation())
sketch13.addGeometry(Part.Circle(Vector(350, -650, 0), Vector(0, 0, 1), 25), False)
sketch13.addGeometry(Part.Circle(Vector(650, -650, 0), Vector(0, 0, 1), 25), False)
sketch13.addGeometry(Part.Circle(Vector(650, -350, 0), Vector(0, 0, 1), 25), False)
sketch13.addGeometry(Part.Circle(Vector(350, -350, 0), Vector(0, 0, 1), 25), False)
sketch13.addConstraint(Sketcher.Constraint("Equal", 0, 1))
sketch13.addConstraint(Sketcher.Constraint("Equal", 1, 2))
sketch13.addConstraint(Sketcher.Constraint("Equal", 2, 3))
sketch13.addConstraint(Sketcher.Constraint("Horizontal", 0, 3, 1, 3))
sketch13.addConstraint(Sketcher.Constraint("Horizontal", 2, 3, 3, 3))
sketch13.addConstraint(Sketcher.Constraint("Vertical", 1, 3, 2, 3))
sketch13.addConstraint(Sketcher.Constraint("Vertical", 0, 3, 3, 3))
sketch13.addConstraint(Sketcher.Constraint("Diameter", 0, Q("50 mm")))
sketch13.addConstraint(Sketcher.Constraint("DistanceX", -1, 1, 0, 3, Q("350 mm")))
sketch13.addConstraint(Sketcher.Constraint("DistanceY", 0, 3, -1, 1, Q("650 mm")))
sketch13.addConstraint(Sketcher.Constraint("DistanceX", -1, 1, 1, 3, Q("650 mm")))
sketch13.addConstraint(Sketcher.Constraint("DistanceY", 2, 3, -1, 1, Q("350 mm")))
pocket4 = doc.addObject("PartDesign::Pocket", "Pocket003")
body.addObject(pocket4)
pocket4.Profile = sketch13
pocket4.Length = 10
pocket4.Reversed = True

doc.recompute()
